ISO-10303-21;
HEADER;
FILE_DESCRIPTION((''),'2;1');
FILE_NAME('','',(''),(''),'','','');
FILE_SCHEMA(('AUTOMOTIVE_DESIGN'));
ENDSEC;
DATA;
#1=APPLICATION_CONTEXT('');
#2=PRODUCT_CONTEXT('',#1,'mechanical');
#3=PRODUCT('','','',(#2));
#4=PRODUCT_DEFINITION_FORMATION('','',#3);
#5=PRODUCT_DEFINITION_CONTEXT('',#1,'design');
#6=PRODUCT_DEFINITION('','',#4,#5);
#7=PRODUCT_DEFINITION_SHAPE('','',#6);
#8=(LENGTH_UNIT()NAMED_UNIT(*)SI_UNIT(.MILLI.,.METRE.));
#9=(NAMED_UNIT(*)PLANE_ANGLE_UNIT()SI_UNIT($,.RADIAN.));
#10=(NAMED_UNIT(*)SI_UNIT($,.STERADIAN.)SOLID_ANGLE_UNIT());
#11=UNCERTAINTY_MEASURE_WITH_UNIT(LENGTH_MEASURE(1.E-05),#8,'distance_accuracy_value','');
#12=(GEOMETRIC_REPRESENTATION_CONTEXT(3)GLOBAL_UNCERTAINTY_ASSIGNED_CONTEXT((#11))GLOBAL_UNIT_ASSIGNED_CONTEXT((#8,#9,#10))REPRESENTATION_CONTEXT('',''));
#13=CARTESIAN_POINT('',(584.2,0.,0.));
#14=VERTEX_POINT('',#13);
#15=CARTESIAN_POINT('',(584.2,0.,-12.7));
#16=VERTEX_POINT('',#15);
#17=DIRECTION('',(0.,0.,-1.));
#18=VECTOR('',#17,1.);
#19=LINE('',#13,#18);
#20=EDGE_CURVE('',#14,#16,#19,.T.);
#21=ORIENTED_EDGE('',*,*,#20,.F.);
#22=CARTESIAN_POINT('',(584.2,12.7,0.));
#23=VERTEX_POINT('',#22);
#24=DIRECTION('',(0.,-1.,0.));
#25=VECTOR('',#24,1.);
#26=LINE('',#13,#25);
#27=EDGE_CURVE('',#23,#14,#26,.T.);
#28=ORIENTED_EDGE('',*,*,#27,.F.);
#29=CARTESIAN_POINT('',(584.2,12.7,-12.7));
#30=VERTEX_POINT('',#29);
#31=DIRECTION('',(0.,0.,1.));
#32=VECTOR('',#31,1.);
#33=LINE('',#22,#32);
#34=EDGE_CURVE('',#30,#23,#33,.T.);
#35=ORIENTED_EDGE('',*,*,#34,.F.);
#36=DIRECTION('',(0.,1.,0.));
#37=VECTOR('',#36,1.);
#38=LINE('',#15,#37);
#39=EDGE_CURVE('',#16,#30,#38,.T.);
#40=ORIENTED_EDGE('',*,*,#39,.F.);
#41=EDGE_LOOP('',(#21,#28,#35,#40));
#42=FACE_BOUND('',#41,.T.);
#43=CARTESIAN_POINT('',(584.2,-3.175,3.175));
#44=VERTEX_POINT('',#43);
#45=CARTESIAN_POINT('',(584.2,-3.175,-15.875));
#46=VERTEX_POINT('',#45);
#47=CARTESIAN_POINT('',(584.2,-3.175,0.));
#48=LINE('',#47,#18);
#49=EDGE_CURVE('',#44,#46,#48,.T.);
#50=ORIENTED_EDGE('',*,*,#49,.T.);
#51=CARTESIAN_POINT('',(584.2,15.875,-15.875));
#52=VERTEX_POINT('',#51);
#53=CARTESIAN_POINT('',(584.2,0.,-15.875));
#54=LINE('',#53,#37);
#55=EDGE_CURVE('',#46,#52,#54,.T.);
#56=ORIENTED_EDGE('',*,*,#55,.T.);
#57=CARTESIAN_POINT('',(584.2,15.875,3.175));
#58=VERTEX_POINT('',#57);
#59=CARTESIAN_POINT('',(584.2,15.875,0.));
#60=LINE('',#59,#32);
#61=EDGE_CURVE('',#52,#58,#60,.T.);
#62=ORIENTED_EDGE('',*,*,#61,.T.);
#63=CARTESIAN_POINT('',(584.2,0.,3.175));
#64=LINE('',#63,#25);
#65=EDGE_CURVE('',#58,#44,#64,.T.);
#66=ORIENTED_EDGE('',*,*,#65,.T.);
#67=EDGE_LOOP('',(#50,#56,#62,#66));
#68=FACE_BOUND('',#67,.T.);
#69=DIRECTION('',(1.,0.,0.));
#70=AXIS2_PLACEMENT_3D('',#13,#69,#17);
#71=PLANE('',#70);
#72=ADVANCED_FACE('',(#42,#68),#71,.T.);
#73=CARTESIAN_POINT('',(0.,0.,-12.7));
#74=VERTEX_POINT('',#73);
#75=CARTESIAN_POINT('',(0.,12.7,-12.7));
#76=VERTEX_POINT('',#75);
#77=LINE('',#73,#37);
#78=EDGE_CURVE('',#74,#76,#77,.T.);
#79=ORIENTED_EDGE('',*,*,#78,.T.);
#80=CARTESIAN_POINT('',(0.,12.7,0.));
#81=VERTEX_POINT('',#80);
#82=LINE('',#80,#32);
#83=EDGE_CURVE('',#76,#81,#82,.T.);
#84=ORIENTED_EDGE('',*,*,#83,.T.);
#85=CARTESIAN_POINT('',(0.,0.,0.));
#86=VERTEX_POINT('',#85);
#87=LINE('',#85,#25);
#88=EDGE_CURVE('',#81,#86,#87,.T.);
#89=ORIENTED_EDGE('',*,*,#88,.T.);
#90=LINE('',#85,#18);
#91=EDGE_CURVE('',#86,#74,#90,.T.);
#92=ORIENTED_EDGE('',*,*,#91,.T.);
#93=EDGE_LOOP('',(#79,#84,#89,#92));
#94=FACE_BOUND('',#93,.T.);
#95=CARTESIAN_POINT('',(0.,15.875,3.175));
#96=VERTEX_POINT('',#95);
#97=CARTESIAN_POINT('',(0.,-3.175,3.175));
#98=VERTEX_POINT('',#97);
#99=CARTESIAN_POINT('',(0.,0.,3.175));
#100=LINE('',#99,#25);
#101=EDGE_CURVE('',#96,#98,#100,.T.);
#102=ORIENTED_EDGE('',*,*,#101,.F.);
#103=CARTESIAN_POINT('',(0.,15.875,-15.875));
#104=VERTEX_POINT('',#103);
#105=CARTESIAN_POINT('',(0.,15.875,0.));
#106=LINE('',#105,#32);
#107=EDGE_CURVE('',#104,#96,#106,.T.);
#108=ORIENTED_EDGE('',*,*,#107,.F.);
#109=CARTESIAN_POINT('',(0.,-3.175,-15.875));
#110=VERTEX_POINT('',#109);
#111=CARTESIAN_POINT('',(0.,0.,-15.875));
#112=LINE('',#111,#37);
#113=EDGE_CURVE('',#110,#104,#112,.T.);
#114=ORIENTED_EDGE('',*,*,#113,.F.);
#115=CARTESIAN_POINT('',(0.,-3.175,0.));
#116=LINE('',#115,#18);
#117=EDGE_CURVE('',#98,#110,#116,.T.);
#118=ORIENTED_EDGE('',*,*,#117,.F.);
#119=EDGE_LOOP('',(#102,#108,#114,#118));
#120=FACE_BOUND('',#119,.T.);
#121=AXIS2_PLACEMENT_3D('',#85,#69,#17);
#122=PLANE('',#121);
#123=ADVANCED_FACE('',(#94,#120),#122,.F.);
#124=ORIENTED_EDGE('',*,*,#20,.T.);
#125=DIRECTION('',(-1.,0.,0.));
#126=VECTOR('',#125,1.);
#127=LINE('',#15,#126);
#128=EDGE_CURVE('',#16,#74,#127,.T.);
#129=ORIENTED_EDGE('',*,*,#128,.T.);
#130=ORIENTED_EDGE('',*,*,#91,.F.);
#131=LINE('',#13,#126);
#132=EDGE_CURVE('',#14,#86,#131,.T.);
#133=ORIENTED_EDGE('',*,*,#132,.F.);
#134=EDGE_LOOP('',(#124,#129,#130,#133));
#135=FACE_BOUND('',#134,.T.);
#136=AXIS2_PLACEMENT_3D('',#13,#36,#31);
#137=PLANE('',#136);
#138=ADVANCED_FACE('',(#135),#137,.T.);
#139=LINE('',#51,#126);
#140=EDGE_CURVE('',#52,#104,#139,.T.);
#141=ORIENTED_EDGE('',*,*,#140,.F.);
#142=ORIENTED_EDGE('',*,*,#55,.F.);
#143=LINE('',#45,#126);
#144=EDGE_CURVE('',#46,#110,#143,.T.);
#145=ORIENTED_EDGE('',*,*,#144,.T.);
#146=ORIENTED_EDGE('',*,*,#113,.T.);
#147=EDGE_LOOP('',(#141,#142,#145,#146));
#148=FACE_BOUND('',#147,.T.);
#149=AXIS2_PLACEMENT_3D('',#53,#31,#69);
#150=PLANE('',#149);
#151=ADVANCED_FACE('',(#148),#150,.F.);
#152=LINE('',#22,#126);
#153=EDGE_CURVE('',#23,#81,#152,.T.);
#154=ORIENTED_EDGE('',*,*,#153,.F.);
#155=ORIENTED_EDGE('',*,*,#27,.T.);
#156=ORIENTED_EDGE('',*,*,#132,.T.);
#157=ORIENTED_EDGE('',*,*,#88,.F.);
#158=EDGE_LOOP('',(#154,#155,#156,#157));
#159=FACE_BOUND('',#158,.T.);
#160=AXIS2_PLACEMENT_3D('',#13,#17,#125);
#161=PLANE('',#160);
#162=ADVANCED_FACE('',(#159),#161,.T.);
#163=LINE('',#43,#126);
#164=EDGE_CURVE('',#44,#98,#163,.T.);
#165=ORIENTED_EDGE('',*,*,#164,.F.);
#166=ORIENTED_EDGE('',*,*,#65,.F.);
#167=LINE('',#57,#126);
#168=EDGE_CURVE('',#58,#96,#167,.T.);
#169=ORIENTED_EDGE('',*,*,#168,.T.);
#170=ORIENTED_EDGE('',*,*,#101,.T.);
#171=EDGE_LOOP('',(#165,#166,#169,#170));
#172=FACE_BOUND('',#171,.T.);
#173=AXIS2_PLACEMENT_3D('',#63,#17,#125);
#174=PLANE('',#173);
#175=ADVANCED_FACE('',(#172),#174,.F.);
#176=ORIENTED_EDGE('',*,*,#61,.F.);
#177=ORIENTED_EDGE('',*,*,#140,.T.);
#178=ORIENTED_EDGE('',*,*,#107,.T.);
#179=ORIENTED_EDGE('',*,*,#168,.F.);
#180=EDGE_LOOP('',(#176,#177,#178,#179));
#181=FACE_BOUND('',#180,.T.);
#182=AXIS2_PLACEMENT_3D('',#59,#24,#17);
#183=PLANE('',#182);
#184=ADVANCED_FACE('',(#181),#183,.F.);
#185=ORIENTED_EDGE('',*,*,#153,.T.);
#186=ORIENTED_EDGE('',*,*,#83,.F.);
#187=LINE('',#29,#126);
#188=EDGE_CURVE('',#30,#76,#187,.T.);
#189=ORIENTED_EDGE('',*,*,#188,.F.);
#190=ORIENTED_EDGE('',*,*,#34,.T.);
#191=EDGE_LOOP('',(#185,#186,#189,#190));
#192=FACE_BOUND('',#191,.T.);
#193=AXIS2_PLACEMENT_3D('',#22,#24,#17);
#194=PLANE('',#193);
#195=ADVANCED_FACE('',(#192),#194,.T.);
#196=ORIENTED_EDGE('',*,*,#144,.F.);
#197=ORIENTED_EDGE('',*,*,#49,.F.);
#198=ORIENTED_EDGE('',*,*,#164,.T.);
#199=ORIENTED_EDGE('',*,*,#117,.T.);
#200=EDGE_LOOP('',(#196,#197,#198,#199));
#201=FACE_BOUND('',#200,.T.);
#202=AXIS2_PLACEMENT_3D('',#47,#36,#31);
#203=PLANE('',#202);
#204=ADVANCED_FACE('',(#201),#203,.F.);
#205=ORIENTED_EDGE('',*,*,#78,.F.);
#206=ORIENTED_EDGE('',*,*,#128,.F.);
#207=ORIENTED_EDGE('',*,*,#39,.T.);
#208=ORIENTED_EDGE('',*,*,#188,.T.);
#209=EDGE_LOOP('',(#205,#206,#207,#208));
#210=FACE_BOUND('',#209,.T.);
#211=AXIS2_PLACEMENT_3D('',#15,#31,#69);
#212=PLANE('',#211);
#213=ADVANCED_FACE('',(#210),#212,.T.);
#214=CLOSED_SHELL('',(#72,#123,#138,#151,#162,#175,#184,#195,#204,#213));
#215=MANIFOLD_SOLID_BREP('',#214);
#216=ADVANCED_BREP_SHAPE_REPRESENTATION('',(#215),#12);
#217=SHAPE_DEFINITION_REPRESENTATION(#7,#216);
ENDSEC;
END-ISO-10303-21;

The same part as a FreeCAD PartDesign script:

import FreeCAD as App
import Part
import Sketcher

V = App.Vector
Q = App.Units.Quantity


def add_polygon(sketch, points):
    """Adds a closed chain of lines whose ends are joined by coincident constraints."""
    first, n = sketch.GeometryCount, len(points)
    for a, b in zip(points, points[1:] + points[:1]):
        sketch.addGeometry(Part.LineSegment(App.Vector(*a, 0), App.Vector(*b, 0)), False)
    for i in range(n):
        sketch.addConstraint(Sketcher.Constraint("Coincident", first + i, 2, first + (i + 1) % n, 1))

doc = App.newDocument("Part")
body = doc.addObject("PartDesign::Body", "Body")

sketch1 = body.newObject("Sketcher::SketchObject", "Sketch")
sketch1.AttachmentSupport = (doc.getObject("YZ_Plane"), [""])
sketch1.MapMode = "FlatFace"
add_polygon(sketch1, [(16, 3), (-3, 3), (-3, -16), (16, -16)])
add_polygon(sketch1, [(0, -13), (0, 0), (13, 0), (13, -13)])
sketch1.addConstraint([
    Sketcher.Constraint("Horizontal", 0),
    Sketcher.Constraint("Vertical", 1),
    Sketcher.Constraint("Horizontal", 2),
    Sketcher.Constraint("Vertical", 3),
    Sketcher.Constraint("Vertical", 4),
    Sketcher.Constraint("Horizontal", 5),
    Sketcher.Constraint("Vertical", 6),
    Sketcher.Constraint("Horizontal", 7),
    Sketcher.Constraint("Coincident", 4, 2, -1, 1),
    Sketcher.Constraint("Equal", 2, 1),
    Sketcher.Constraint("Equal", 7, 4),
    Sketcher.Constraint("DistanceX", 5, 1, 5, 2, Q("0.5 in")),
    Sketcher.Constraint("DistanceX", 0, 2, 0, 1, Q("0.75 in")),
    Sketcher.Constraint("DistanceX", 0, 2, -1, 1, Q("0.125 in")),
    Sketcher.Constraint("DistanceY", -1, 1, 0, 2, Q("0.125 in")),
])
pad1 = body.newObject("PartDesign::Pad", "Pad")
pad1.Profile = sketch1
pad1.Length = Q("23 in")

doc.recompute()
